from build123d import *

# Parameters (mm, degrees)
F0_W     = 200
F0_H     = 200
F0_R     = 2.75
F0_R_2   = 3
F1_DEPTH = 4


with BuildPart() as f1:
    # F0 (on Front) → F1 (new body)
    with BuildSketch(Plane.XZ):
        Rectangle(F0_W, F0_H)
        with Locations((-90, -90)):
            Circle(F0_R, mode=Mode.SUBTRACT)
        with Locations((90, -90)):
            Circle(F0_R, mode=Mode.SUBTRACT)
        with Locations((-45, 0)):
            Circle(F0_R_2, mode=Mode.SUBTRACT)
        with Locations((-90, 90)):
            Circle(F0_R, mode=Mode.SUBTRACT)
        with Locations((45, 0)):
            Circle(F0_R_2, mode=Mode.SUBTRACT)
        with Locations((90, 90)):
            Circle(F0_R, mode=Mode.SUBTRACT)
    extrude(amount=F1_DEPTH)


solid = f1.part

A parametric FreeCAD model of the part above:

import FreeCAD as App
import Part
import Sketcher
from FreeCAD import Vector


def add_polygon(sketch, points):
    """Adds a closed chain of lines whose ends are joined by coincident constraints."""
    first, n = sketch.GeometryCount, len(points)
    for a, b in zip(points, points[1:] + points[:1]):
        sketch.addGeometry(Part.LineSegment(App.Vector(*a, 0), App.Vector(*b, 0)), False)
    for i in range(n):
        sketch.addConstraint(Sketcher.Constraint("Coincident", first + i, 2, first + (i + 1) % n, 1))

doc = App.newDocument("Part")
body = doc.addObject("PartDesign::Body", "Body")

# Sketch on XZ plane
sketch1 = doc.addObject("Sketcher::SketchObject", "Sketch")
body.addObject(sketch1)
sketch1.AttachmentSupport = (doc.XZ_Plane, [""])
sketch1.MapMode = "FlatFace"
add_polygon(sketch1, [(-100, 100), (-100, -100), (100, -100), (100, 100)])  # lines 0-3
sketch1.addGeometry(Part.Circle(Vector(-90, -90, 0), Vector(0, 0, 1), 2.75), False)  # 4
sketch1.addGeometry(Part.Circle(Vector(90, -90, 0), Vector(0, 0, 1), 2.75), False)  # 5
sketch1.addGeometry(Part.Circle(Vector(-45, 0, 0), Vector(0, 0, 1), 3), False)  # 6
sketch1.addGeometry(Part.Circle(Vector(-90, 90, 0), Vector(0, 0, 1), 2.75), False)  # 7
sketch1.addGeometry(Part.Circle(Vector(45, 0, 0), Vector(0, 0, 1), 3), False)  # 8
sketch1.addGeometry(Part.Circle(Vector(90, 90, 0), Vector(0, 0, 1), 2.75), False)  # 9
sketch1.addConstraint(Sketcher.Constraint("Vertical", 0))
sketch1.addConstraint(Sketcher.Constraint("Horizontal", 1))
sketch1.addConstraint(Sketcher.Constraint("Vertical", 2))
sketch1.addConstraint(Sketcher.Constraint("Horizontal", 3))
sketch1.addConstraint(Sketcher.Constraint("Equal", 4, 5))
sketch1.addConstraint(Sketcher.Constraint("Equal", 5, 7))
sketch1.addConstraint(Sketcher.Constraint("Equal", 6, 8))
sketch1.addConstraint(Sketcher.Constraint("Equal", 7, 9))
sketch1.addConstraint(Sketcher.Constraint("Symmetric", 5, 3, 7, 3, -1, 1))
sketch1.addConstraint(Sketcher.Constraint("Symmetric", 6, 3, 8, 3, -1, 1))
sketch1.addConstraint(Sketcher.Constraint("Symmetric", 4, 3, 9, 3, -1, 1))
sketch1.addConstraint(Sketcher.Constraint("Symmetric", 0, 2, 2, 2, -1, 1))
sketch1.addConstraint(Sketcher.Constraint("Symmetric", 4, 3, 5, 3, -2))
sketch1.addConstraint(Sketcher.Constraint("PointOnObject", 6, 3, -1))
sketch1.addConstraint(Sketcher.Constraint("Equal", 3, 0))
sketch1.addConstraint(Sketcher.Constraint("Diameter", 6, 6.0))
sketch1.addConstraint(Sketcher.Constraint("Diameter", 4, 5.5))
sketch1.addConstraint(Sketcher.Constraint("DistanceX", 1, 1, 1, 2, 200.0))
sketch1.addConstraint(Sketcher.Constraint("DistanceX", 4, 3, -1, 1, 90.0))
sketch1.addConstraint(Sketcher.Constraint("DistanceY", 4, 3, -1, 1, 90.0))
sketch1.addConstraint(Sketcher.Constraint("DistanceX", 6, 3, -1, 1, 45.0))
pad1 = doc.addObject("PartDesign::Pad", "Pad")
body.addObject(pad1)
pad1.Profile = sketch1
pad1.Length = 4

doc.recompute()
